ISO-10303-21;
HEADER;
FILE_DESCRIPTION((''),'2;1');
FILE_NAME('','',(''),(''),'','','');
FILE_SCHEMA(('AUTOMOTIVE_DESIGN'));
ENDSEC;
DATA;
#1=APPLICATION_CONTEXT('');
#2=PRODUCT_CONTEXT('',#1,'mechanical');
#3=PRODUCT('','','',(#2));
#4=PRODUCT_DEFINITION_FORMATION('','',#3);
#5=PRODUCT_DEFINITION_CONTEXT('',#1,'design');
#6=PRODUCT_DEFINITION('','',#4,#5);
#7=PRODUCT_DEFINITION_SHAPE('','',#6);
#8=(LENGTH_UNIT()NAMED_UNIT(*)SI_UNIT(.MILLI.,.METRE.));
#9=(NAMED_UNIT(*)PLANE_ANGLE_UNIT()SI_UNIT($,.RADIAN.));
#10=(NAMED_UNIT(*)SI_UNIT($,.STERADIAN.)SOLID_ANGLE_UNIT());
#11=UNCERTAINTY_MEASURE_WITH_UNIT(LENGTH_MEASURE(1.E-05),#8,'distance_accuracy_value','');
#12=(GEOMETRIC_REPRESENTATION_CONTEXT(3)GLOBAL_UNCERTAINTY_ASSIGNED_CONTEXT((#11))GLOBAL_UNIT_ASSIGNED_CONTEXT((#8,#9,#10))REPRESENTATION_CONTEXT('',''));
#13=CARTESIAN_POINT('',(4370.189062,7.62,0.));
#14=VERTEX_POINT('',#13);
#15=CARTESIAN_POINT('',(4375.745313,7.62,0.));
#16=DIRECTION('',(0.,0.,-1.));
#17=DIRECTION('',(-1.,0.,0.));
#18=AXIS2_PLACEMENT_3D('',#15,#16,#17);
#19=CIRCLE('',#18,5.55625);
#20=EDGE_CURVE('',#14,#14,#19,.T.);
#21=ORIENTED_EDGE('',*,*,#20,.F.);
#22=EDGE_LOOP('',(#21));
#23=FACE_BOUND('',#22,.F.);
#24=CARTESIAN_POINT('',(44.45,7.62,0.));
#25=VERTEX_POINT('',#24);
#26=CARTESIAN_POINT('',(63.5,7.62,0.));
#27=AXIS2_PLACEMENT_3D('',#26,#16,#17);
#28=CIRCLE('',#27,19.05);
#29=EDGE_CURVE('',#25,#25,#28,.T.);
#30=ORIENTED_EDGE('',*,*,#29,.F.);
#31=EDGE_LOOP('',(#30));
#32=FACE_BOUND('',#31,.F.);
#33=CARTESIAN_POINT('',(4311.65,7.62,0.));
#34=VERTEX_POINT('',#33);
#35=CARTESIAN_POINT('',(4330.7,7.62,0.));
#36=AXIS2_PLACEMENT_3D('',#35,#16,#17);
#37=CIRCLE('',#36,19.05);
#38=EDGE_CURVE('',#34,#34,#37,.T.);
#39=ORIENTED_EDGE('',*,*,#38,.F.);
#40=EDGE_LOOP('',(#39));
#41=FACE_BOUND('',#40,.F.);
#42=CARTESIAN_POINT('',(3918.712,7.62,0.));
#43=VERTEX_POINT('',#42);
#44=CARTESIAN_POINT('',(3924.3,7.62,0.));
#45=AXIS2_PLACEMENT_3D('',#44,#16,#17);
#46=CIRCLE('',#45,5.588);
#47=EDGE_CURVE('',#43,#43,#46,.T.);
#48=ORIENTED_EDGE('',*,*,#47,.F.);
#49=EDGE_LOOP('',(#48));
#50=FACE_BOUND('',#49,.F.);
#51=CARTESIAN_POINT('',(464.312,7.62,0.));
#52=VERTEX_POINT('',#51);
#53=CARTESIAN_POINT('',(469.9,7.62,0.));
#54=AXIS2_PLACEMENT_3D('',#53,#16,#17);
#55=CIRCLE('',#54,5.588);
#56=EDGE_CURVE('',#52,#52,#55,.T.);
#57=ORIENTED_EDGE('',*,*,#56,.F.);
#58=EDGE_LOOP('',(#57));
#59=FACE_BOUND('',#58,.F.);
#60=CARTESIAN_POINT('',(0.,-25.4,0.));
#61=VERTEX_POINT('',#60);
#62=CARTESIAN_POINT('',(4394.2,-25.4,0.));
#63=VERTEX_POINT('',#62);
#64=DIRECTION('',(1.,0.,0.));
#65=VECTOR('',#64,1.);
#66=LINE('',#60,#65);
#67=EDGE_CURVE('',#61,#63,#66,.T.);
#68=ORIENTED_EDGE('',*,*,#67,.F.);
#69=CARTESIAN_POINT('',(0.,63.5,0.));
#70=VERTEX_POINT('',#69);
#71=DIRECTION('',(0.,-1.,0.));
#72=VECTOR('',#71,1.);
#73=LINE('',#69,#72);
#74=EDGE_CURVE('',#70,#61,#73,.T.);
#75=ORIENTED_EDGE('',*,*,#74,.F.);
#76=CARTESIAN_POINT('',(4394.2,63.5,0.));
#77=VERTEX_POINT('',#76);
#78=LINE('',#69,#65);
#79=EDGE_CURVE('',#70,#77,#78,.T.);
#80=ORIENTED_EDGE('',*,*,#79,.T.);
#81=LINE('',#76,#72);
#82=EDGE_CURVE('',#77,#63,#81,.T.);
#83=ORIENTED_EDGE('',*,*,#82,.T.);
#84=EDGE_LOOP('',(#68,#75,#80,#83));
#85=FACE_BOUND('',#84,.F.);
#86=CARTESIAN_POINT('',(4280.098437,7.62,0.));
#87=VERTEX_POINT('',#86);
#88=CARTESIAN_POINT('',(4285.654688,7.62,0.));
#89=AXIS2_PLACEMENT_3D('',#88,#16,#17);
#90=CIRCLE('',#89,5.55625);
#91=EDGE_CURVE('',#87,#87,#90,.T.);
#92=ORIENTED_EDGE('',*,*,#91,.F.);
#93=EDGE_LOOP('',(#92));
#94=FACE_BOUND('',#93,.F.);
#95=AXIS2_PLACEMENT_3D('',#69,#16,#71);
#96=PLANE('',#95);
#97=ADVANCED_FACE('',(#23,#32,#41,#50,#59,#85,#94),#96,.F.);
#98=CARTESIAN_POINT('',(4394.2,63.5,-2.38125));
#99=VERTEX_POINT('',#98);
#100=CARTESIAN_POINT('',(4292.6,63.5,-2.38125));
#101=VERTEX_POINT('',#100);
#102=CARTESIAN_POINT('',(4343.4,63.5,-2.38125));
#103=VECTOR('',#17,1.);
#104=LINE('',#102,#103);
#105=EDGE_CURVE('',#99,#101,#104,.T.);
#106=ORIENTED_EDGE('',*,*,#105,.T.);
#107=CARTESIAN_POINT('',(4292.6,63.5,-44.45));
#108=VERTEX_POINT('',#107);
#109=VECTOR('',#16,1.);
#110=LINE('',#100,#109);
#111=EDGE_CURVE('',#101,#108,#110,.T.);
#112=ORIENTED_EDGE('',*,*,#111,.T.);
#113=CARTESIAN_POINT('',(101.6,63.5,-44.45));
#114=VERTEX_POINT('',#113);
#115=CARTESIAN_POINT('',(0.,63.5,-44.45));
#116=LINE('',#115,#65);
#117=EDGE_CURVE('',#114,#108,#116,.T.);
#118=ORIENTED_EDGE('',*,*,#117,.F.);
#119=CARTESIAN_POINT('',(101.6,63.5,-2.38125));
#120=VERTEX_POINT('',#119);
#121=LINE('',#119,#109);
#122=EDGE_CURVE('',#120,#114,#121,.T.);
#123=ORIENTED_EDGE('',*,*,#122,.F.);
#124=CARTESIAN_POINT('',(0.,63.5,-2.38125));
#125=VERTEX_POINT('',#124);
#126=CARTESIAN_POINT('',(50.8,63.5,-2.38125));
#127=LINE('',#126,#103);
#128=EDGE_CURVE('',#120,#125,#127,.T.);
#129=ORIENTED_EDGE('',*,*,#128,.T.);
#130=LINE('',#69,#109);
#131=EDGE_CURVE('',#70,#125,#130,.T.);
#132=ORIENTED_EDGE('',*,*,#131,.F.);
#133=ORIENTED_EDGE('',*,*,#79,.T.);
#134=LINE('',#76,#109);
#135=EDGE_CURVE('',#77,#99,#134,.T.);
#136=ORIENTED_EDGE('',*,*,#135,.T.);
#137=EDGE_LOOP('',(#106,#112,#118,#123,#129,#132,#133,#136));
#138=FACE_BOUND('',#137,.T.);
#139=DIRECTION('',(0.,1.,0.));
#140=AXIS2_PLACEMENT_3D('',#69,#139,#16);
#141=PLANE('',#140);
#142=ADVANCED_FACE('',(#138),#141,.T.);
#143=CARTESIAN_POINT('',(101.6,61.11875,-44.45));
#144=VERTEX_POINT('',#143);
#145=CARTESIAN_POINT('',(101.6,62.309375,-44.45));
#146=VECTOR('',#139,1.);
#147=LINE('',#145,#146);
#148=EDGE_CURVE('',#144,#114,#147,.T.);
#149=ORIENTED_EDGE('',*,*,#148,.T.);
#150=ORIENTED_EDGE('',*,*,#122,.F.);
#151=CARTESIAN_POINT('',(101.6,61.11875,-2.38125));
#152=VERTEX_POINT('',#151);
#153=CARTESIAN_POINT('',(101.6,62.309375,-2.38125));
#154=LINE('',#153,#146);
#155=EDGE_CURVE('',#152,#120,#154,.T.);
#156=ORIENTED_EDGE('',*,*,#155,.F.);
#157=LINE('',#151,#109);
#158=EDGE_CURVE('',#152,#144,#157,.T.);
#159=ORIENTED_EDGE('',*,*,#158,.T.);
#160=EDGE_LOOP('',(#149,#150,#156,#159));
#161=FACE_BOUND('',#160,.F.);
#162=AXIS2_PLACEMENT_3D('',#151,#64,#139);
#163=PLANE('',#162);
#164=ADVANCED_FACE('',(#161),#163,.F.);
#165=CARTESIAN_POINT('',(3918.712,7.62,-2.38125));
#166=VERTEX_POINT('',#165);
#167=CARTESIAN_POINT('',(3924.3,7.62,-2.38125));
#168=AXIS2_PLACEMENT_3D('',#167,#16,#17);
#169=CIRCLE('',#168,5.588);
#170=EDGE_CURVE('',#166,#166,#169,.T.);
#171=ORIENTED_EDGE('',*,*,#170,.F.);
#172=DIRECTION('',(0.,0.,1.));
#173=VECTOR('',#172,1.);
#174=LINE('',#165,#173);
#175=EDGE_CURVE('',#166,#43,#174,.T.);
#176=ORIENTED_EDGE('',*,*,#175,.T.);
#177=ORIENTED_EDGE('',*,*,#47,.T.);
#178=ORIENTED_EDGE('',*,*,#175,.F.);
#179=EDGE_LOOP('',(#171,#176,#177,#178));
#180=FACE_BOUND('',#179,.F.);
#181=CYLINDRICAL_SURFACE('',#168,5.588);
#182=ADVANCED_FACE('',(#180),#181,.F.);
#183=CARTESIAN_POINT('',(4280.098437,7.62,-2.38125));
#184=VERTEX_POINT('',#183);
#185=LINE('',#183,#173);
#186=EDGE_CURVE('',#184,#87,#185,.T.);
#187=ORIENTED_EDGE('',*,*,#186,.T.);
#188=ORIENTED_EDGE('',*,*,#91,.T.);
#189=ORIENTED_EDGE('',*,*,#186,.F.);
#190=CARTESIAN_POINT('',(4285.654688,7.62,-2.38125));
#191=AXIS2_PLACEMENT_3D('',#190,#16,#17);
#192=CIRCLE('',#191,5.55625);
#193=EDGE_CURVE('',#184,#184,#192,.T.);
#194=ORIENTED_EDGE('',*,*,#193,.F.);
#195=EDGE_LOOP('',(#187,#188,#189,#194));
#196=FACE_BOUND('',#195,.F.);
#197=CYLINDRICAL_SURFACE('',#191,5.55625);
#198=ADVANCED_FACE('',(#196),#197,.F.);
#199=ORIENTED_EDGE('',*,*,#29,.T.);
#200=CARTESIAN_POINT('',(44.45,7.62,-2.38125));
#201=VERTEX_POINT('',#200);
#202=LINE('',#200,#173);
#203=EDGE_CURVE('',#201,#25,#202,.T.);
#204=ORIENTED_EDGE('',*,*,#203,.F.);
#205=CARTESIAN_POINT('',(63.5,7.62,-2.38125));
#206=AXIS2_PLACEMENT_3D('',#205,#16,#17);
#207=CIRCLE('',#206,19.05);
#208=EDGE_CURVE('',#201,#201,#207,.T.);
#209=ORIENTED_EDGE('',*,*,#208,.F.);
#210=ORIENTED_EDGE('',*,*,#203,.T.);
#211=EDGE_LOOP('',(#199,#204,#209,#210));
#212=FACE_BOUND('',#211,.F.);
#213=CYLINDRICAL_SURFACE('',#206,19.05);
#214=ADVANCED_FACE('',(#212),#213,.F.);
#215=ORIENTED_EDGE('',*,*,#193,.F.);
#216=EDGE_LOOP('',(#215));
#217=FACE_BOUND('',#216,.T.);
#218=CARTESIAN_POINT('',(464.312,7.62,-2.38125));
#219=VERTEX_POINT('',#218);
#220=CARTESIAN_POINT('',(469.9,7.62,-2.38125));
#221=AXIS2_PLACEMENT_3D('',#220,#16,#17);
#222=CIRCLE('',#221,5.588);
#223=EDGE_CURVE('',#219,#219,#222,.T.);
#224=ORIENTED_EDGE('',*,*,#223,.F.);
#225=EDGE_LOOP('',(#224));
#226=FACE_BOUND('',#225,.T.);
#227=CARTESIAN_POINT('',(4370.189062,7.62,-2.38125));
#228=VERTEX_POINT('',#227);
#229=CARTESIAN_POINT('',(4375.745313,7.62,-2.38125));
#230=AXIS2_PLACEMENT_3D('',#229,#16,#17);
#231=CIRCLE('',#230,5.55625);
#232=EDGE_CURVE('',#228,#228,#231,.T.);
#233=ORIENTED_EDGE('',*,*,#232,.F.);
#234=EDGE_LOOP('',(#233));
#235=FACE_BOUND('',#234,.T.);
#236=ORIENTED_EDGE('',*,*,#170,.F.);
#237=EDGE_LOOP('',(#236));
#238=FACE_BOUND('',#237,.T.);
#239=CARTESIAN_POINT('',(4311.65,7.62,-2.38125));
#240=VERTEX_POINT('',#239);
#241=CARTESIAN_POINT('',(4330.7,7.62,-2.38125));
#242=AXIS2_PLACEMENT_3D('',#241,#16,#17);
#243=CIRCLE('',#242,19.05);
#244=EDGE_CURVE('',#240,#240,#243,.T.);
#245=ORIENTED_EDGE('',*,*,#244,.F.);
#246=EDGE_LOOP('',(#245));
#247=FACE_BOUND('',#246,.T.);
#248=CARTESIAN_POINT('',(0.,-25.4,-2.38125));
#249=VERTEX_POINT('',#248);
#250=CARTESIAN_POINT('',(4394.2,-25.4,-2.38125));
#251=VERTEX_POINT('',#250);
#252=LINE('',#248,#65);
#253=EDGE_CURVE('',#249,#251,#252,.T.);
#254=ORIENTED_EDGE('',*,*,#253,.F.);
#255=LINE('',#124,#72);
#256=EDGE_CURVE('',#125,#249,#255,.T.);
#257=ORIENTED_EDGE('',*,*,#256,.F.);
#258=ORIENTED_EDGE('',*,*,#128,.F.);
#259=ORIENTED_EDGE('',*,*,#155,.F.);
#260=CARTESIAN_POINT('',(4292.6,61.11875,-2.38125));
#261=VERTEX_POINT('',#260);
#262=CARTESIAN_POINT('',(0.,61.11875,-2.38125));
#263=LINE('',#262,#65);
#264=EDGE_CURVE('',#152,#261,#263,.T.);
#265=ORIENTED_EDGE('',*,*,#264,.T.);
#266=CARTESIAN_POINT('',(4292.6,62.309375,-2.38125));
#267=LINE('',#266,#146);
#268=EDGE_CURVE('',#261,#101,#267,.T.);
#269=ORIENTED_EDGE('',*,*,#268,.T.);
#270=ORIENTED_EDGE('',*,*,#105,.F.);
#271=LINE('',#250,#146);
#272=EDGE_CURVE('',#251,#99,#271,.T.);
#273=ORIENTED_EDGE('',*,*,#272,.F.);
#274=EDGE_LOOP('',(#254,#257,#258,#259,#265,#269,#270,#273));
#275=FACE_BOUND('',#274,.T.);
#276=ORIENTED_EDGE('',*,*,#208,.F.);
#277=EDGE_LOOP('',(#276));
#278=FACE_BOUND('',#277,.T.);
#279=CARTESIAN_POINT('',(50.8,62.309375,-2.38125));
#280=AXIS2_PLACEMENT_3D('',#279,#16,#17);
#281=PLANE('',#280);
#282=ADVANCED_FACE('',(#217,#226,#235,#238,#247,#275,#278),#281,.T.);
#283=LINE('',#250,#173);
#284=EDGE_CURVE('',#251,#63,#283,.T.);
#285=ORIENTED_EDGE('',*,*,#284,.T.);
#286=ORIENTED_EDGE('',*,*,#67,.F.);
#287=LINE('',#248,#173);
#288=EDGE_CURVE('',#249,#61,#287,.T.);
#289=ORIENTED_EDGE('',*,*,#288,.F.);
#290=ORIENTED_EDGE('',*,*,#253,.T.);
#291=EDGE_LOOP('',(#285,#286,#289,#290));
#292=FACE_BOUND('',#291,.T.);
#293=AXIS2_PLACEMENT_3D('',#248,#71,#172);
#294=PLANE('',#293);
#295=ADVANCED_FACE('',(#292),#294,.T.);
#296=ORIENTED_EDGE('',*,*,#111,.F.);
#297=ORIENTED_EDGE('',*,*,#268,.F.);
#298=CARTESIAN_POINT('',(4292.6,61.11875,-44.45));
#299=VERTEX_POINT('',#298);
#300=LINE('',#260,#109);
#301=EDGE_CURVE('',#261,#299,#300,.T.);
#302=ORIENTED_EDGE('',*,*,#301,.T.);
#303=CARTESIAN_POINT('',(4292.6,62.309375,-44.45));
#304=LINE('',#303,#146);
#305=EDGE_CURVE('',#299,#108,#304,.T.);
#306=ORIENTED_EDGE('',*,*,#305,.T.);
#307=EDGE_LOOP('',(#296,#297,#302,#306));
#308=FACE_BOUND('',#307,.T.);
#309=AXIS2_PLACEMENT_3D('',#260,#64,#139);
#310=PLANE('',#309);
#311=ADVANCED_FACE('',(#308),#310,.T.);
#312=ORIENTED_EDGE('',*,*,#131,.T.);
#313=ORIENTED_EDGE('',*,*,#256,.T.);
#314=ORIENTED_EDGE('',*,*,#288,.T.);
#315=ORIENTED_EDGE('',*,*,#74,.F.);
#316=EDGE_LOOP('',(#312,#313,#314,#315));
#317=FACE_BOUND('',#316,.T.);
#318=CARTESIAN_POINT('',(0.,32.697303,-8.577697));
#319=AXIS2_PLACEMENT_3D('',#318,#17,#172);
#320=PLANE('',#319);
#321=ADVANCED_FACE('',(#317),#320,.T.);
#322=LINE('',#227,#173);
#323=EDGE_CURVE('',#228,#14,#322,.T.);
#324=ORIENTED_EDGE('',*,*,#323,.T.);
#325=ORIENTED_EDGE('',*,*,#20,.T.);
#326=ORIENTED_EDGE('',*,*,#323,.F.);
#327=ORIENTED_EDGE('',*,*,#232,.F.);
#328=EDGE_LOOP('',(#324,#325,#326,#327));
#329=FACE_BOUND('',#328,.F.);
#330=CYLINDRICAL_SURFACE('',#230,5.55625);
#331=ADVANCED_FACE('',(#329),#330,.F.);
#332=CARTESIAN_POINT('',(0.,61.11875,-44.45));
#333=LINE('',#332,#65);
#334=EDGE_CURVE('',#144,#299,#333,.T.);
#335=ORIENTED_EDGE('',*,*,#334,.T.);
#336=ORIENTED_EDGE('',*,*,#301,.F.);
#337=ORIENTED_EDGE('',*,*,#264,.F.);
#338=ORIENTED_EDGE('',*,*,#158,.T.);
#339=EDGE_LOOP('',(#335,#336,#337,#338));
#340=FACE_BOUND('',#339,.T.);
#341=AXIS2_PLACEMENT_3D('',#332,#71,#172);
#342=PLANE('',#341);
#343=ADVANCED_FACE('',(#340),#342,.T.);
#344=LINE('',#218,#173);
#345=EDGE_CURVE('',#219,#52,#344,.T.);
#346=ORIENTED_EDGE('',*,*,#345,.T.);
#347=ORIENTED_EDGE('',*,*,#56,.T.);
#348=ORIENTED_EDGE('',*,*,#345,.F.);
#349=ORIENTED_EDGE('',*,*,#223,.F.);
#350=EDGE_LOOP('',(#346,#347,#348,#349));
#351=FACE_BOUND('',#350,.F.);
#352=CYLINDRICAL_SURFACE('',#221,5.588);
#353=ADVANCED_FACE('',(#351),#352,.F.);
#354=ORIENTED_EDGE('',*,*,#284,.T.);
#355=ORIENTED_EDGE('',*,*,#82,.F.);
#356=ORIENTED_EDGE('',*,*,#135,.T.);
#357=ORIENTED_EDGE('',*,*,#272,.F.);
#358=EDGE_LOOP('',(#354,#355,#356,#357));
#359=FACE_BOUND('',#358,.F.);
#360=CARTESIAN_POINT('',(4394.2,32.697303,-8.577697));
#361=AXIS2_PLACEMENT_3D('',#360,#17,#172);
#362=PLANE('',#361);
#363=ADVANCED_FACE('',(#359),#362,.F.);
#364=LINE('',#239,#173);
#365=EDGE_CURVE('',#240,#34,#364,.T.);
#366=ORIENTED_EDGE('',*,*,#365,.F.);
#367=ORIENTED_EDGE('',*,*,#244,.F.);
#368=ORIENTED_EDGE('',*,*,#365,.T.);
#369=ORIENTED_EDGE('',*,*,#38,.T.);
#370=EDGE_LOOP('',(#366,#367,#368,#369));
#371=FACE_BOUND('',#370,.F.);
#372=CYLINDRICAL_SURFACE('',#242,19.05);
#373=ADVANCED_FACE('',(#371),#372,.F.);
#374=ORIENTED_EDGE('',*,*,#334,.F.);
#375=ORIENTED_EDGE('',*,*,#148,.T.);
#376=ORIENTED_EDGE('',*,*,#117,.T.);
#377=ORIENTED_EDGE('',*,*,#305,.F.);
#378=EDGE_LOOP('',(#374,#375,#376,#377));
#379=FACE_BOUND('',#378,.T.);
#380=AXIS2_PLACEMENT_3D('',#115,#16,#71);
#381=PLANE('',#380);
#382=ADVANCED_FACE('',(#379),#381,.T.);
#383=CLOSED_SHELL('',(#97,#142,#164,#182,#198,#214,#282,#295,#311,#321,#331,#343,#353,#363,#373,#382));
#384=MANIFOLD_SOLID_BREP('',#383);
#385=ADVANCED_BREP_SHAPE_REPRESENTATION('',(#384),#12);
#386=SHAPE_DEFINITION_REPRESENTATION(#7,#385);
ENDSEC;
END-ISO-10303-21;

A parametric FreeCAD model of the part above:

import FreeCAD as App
import Part
import Sketcher

V = App.Vector
Q = App.Units.Quantity

doc = App.newDocument("Part")
body = doc.addObject("PartDesign::Body", "Body")

# Sketch on YZ plane
sketch1 = doc.addObject("Sketcher::SketchObject", "Sketch")
body.addObject(sketch1)
sketch1.AttachmentSupport = (doc.YZ_Plane, [""])
sketch1.MapMode = "FlatFace"
sketch1.addGeometry([
    Part.LineSegment(V(63.5, 0, 0), V(-25.4, 0, 0)),  # 0
    Part.LineSegment(V(-25.4, 0, 0), V(-25.4, -2.4, 0)),  # 1
    Part.LineSegment(V(-25.4, -2.4, 0), V(61.1, -2.4, 0)),  # 2
    Part.LineSegment(V(61.1, -2.4, 0), V(61.1, -44.5, 0)),  # 3
    Part.LineSegment(V(61.1, -44.5, 0), V(63.5, -44.5, 0)),  # 4
    Part.LineSegment(V(63.5, -44.5, 0), V(63.5, 0, 0)),  # 5
], False)
sketch1.addConstraint([
    Sketcher.Constraint("Coincident", 0, 2, 1, 1),
    Sketcher.Constraint("Coincident", 1, 2, 2, 1),
    Sketcher.Constraint("Coincident", 2, 2, 3, 1),
    Sketcher.Constraint("Coincident", 3, 2, 4, 1),
    Sketcher.Constraint("Coincident", 4, 2, 5, 1),
    Sketcher.Constraint("Coincident", 5, 2, 0, 1),
    Sketcher.Constraint("Horizontal", 0),
    Sketcher.Constraint("Vertical", 1),
    Sketcher.Constraint("Horizontal", 2),
    Sketcher.Constraint("Vertical", 3),
    Sketcher.Constraint("Horizontal", 4),
    Sketcher.Constraint("Vertical", 5),
    Sketcher.Constraint("PointOnObject", 0, 2, -1),
    Sketcher.Constraint("Equal", 4, 1),
    Sketcher.Constraint("DistanceX", 0, 2, 0, 1, Q("3.5 in")),
    Sketcher.Constraint("DistanceX", 0, 2, -1, 1, Q("1 in")),
    Sketcher.Constraint("DistanceY", 5, 1, 5, 2, Q("1.75 in")),
    Sketcher.Constraint("DistanceX", 2, 1, 2, 2, Q("3.40625 in")),
])
pad1 = doc.addObject("PartDesign::Pad", "Pad")
body.addObject(pad1)
pad1.Profile = sketch1
pad1.Length = Q("173 in")

# Sketch on XY plane
sketch2 = doc.addObject("Sketcher::SketchObject", "Sketch001")
body.addObject(sketch2)
sketch2.AttachmentSupport = (doc.XY_Plane, [""])
sketch2.MapMode = "FlatFace"
sketch2.AttachmentOffset = App.Placement(V(0, 0, -0.09375 * 25.4), App.Rotation())
sketch2.addGeometry(Part.Circle(V(4331, 8, 0), V(0, 0, 1), 19), False)
sketch2.addConstraint([
    Sketcher.Constraint("Diameter", 0, Q("1.5 in")),
    Sketcher.Constraint("DistanceX", -1, 1, 0, 3, Q("170.5 in")),
    Sketcher.Constraint("DistanceY", -1, 1, 0, 3, Q("0.3 in")),
])
pocket1 = doc.addObject("PartDesign::Pocket", "Pocket")
body.addObject(pocket1)
pocket1.Profile = sketch2
pocket1.Type = "UpToFirst"
pocket1.Reversed = True

# Sketch on XY plane
sketch3 = doc.addObject("Sketcher::SketchObject", "Sketch002")
body.addObject(sketch3)
sketch3.AttachmentSupport = (doc.XY_Plane, [""])
sketch3.MapMode = "FlatFace"
sketch3.AttachmentOffset = App.Placement(V(0, 0, -0.09375 * 25.4), App.Rotation())
sketch3.addGeometry(Part.Circle(V(64, 8, 0), V(0, 0, 1), 19), False)
sketch3.addConstraint([
    Sketcher.Constraint("Diameter", 0, Q("1.5 in")),
    Sketcher.Constraint("DistanceX", -1, 1, 0, 3, Q("2.5 in")),
    Sketcher.Constraint("DistanceY", -1, 1, 0, 3, Q("0.3 in")),
])
pocket2 = doc.addObject("PartDesign::Pocket", "Pocket001")
body.addObject(pocket2)
pocket2.Profile = sketch3
pocket2.Type = "UpToFirst"
pocket2.Reversed = True

# Sketch on XY plane
sketch4 = doc.addObject("Sketcher::SketchObject", "Sketch003")
body.addObject(sketch4)
sketch4.AttachmentSupport = (doc.XY_Plane, [""])
sketch4.MapMode = "FlatFace"
sketch4.AttachmentOffset = App.Placement(V(0, 0, -0.09375 * 25.4), App.Rotation())
sketch4.addGeometry(Part.Circle(V(4286, 8, 0), V(0, 0, 1), 6), False)
sketch4.addConstraint([
    Sketcher.Constraint("Diameter", 0, Q("0.4375 in")),
    Sketcher.Constraint("DistanceY", -1, 1, 0, 3, Q("0.3 in")),
    Sketcher.Constraint("DistanceX", -1, 1, 0, 3, Q("4285.654688 mm")),
])
pocket3 = doc.addObject("PartDesign::Pocket", "Pocket002")
body.addObject(pocket3)
pocket3.Profile = sketch4
pocket3.Type = "UpToFirst"
pocket3.Reversed = True

# Sketch on XY plane
sketch5 = doc.addObject("Sketcher::SketchObject", "Sketch004")
body.addObject(sketch5)
sketch5.AttachmentSupport = (doc.XY_Plane, [""])
sketch5.MapMode = "FlatFace"
sketch5.AttachmentOffset = App.Placement(V(0, 0, -0.09375 * 25.4), App.Rotation())
sketch5.addGeometry(Part.Circle(V(4376, 8, 0), V(0, 0, 1), 6), False)
sketch5.addConstraint([
    Sketcher.Constraint("Diameter", 0, Q("0.4375 in")),
    Sketcher.Constraint("DistanceY", -1, 1, 0, 3, Q("0.3 in")),
    Sketcher.Constraint("DistanceX", -1, 1, 0, 3, Q("4375.745313 mm")),
])
pocket4 = doc.addObject("PartDesign::Pocket", "Pocket003")
body.addObject(pocket4)
pocket4.Profile = sketch5
pocket4.Type = "UpToFirst"
pocket4.Reversed = True

# Sketch on XY plane
sketch6 = doc.addObject("Sketcher::SketchObject", "Sketch005")
body.addObject(sketch6)
sketch6.AttachmentSupport = (doc.XY_Plane, [""])
sketch6.MapMode = "FlatFace"
sketch6.AttachmentOffset = App.Placement(V(0, 0, -0.09375 * 25.4), App.Rotation())
sketch6.addGeometry([
    Part.LineSegment(V(4394.2, 63.5, 0), V(4394.2, 61.1, 0)),
    Part.LineSegment(V(4394.2, 61.1, 0), V(4292.6, 61.1, 0)),
    Part.LineSegment(V(4292.6, 61.1, 0), V(4292.6, 63.5, 0)),
    Part.LineSegment(V(4292.6, 63.5, 0), V(4394.2, 63.5, 0)),
], False)
sketch6.addConstraint([
    Sketcher.Constraint("Coincident", 0, 2, 1, 1),
    Sketcher.Constraint("Coincident", 1, 2, 2, 1),
    Sketcher.Constraint("Coincident", 2, 2, 3, 1),
    Sketcher.Constraint("Coincident", 3, 2, 0, 1),
    Sketcher.Constraint("Vertical", 0),
    Sketcher.Constraint("Horizontal", 1),
    Sketcher.Constraint("Vertical", 2),
    Sketcher.Constraint("Horizontal", 3),
    Sketcher.Constraint("DistanceX", 1, 2, 1, 1, Q("4 in")),
    Sketcher.Constraint("DistanceX", -1, 1, 0, 2, Q("173 in")),
    Sketcher.Constraint("DistanceY", -1, 1, 2, 2, Q("2.5 in")),
    Sketcher.Constraint("DistanceY", 0, 2, 0, 1, Q("0.09375 in")),
])
pocket5 = doc.addObject("PartDesign::Pocket", "Pocket004")
body.addObject(pocket5)
pocket5.Profile = sketch6
pocket5.Type = "UpToFirst"

# Sketch on XY plane
sketch7 = doc.addObject("Sketcher::SketchObject", "Sketch006")
body.addObject(sketch7)
sketch7.AttachmentSupport = (doc.XY_Plane, [""])
sketch7.MapMode = "FlatFace"
sketch7.AttachmentOffset = App.Placement(V(0, 0, -0.09375 * 25.4), App.Rotation())
sketch7.addGeometry([
    Part.LineSegment(V(101.6, 63.5, 0), V(101.6, 61.1, 0)),
    Part.LineSegment(V(101.6, 61.1, 0), V(0, 61.1, 0)),
    Part.LineSegment(V(0, 61.1, 0), V(0, 63.5, 0)),
    Part.LineSegment(V(0, 63.5, 0), V(101.6, 63.5, 0)),
], False)
sketch7.addConstraint([
    Sketcher.Constraint("Coincident", 0, 2, 1, 1),
    Sketcher.Constraint("Coincident", 1, 2, 2, 1),
    Sketcher.Constraint("Coincident", 2, 2, 3, 1),
    Sketcher.Constraint("Coincident", 3, 2, 0, 1),
    Sketcher.Constraint("Vertical", 0),
    Sketcher.Constraint("Horizontal", 1),
    Sketcher.Constraint("Vertical", 2),
    Sketcher.Constraint("Horizontal", 3),
    Sketcher.Constraint("PointOnObject", 1, 2, -2),
    Sketcher.Constraint("DistanceX", 1, 2, 1, 1, Q("4 in")),
    Sketcher.Constraint("DistanceY", -1, 1, 2, 2, Q("2.5 in")),
    Sketcher.Constraint("DistanceY", 0, 2, 0, 1, Q("0.09375 in")),
])
pocket6 = doc.addObject("PartDesign::Pocket", "Pocket005")
body.addObject(pocket6)
pocket6.Profile = sketch7
pocket6.Type = "UpToFirst"

# Sketch on XY plane
sketch8 = doc.addObject("Sketcher::SketchObject", "Sketch007")
body.addObject(sketch8)
sketch8.AttachmentSupport = (doc.XY_Plane, [""])
sketch8.MapMode = "FlatFace"
sketch8.AttachmentOffset = App.Placement(V(0, 0, -0.09375 * 25.4), App.Rotation())
sketch8.addGeometry([
    Part.Circle(V(3924, 8, 0), V(0, 0, 1), 6),
    Part.Circle(V(470, 8, 0), V(0, 0, 1), 6),
    Part.Circle(V(64, 8, 0), V(0, 0, 1), 19),
], False)
sketch8.addConstraint([
    Sketcher.Constraint("Equal", 0, 1),
    Sketcher.Constraint("Horizontal", 0, 3, 1, 3),
    Sketcher.Constraint("Horizontal", 1, 3, 2, 3),
    Sketcher.Constraint("Diameter", 2, Q("1.5 in")),
    Sketcher.Constraint("Diameter", 0, Q("0.44 in")),
    Sketcher.Constraint("DistanceX", 1, 3, 0, 3, Q("136 in")),
    Sketcher.Constraint("DistanceX", 2, 3, 1, 3, Q("16 in")),
    Sketcher.Constraint("DistanceX", -1, 1, 0, 3, Q("154.5 in")),
    Sketcher.Constraint("DistanceY", -1, 1, 0, 3, Q("0.3 in")),
])
pocket7 = doc.addObject("PartDesign::Pocket", "Pocket006")
body.addObject(pocket7)
pocket7.Profile = sketch8
pocket7.Length = Q("0.09375 in")
pocket7.Reversed = True

doc.recompute()
